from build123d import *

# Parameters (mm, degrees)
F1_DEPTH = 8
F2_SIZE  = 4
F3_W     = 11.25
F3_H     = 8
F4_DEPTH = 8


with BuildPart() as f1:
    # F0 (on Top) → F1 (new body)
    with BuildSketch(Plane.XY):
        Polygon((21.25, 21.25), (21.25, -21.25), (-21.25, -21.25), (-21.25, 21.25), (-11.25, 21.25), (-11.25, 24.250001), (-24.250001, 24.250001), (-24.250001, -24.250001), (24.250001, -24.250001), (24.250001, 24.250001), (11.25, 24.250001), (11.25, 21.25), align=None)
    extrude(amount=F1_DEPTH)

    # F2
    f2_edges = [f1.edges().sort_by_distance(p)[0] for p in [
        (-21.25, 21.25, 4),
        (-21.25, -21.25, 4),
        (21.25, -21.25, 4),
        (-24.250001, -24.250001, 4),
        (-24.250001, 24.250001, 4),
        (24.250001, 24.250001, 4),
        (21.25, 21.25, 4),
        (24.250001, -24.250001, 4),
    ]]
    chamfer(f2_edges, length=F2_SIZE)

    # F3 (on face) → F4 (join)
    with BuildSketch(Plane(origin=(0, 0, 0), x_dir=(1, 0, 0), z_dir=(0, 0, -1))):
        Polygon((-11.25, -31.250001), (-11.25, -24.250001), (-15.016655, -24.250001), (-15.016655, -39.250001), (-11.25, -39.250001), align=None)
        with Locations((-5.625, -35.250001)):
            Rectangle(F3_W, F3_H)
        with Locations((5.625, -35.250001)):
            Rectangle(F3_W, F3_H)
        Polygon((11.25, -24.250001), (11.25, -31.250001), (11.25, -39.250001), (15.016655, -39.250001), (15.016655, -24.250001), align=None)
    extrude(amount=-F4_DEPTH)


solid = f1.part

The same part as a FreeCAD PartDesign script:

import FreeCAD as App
import Part
import Sketcher

V = App.Vector
Q = App.Units.Quantity


def edges_at(feature, points):
    """Names of the edges that pass closest to the given points."""
    edges = feature.Shape.Edges
    near = lambda p: min(range(len(edges)), key=lambda i: edges[i].distToShape(Part.Vertex(*p))[0])
    return sorted({f"Edge{near(p) + 1}" for p in points})


def add_polygon(sketch, points):
    """Adds a closed chain of lines whose ends are joined by coincident constraints."""
    first, n = sketch.GeometryCount, len(points)
    for a, b in zip(points, points[1:] + points[:1]):
        sketch.addGeometry(Part.LineSegment(App.Vector(*a, 0), App.Vector(*b, 0)), False)
    for i in range(n):
        sketch.addConstraint(Sketcher.Constraint("Coincident", first + i, 2, first + (i + 1) % n, 1))

doc = App.newDocument("Part")
body = doc.addObject("PartDesign::Body", "Body")

sketch1 = doc.addObject("Sketcher::SketchObject", "Sketch")
body.addObject(sketch1)
sketch1.AttachmentSupport = (doc.XY_Plane, [""])
sketch1.MapMode = "FlatFace"
add_polygon(sketch1, [(21.2, 21.2), (21.2, -21.2), (-21.2, -21.2), (-21.2, 21.2), (-11.2, 21.2), (-11.2, 24.3), (-24.3, 24.3), (-24.3, -24.3), (24.3, -24.3), (24.3, 24.3), (11.2, 24.3), (11.2, 21.2)])
sketch1.addConstraint([
    Sketcher.Constraint("Vertical", 0),
    Sketcher.Constraint("Horizontal", 1),
    Sketcher.Constraint("Vertical", 2),
    Sketcher.Constraint("Horizontal", 3),
    Sketcher.Constraint("Vertical", 4),
    Sketcher.Constraint("Horizontal", 5),
    Sketcher.Constraint("Vertical", 6),
    Sketcher.Constraint("Horizontal", 7),
    Sketcher.Constraint("Vertical", 8),
    Sketcher.Constraint("Horizontal", 9),
    Sketcher.Constraint("Vertical", 10),
    Sketcher.Constraint("Horizontal", 11),
    Sketcher.Constraint("Symmetric", 0, 2, 2, 2, -1, 1),
    Sketcher.Constraint("Symmetric", 5, 2, 7, 2, -1, 1),
    Sketcher.Constraint("Symmetric", 4, 2, 9, 2, -2),
    Sketcher.Constraint("Horizontal", 3, 2, 10, 2),
    Sketcher.Constraint("Equal", 1, 0),
    Sketcher.Constraint("Equal", 7, 6),
    Sketcher.Constraint("DistanceX", 3, 1, 3, 2, Q("10 mm")),
    Sketcher.Constraint("DistanceX", 5, 2, 5, 1, Q("13.000001 mm")),
    Sketcher.Constraint("DistanceX", 1, 2, 1, 1, Q("42.5 mm")),
])
pad1 = doc.addObject("PartDesign::Pad", "Pad")
body.addObject(pad1)
pad1.Profile = sketch1
pad1.Length = 8
doc.recompute()

chamfer = doc.addObject("PartDesign::Chamfer", "Chamfer")
body.addObject(chamfer)
chamfer.Base = (pad1, edges_at(pad1, [
    (-21.25, 21.25, 4),
    (-21.25, -21.25, 4),
    (21.25, -21.25, 4),
    (-24.25, -24.25, 4),
    (-24.25, 24.25, 4),
    (24.25, 24.25, 4),
    (21.25, 21.25, 4),
    (24.25, -24.25, 4),
]))
chamfer.Size = 4

sketch2 = doc.addObject("Sketcher::SketchObject", "Sketch001")
body.addObject(sketch2)
sketch2.AttachmentSupport = (doc.XY_Plane, [""])
sketch2.MapMode = "FlatFace"
add_polygon(sketch2, [(-11.2, 24.3), (-15, 24.3), (-15, 39.3), (15, 39.3), (15, 24.3), (11.2, 24.3), (11.2, 31.3), (-11.2, 31.3)])
sketch2.addConstraint([
    Sketcher.Constraint("Horizontal", 0),
    Sketcher.Constraint("Vertical", 1),
    Sketcher.Constraint("Horizontal", 2),
    Sketcher.Constraint("Vertical", 3),
    Sketcher.Constraint("Horizontal", 4),
    Sketcher.Constraint("Vertical", 5),
    Sketcher.Constraint("Horizontal", 6),
    Sketcher.Constraint("Vertical", 7),
    Sketcher.Constraint("Symmetric", 0, 2, 3, 2, -2),
    Sketcher.Constraint("Equal", 0, 4),
    Sketcher.Constraint("DistanceY", 1, 1, 1, 2, Q("15 mm")),
    Sketcher.Constraint("DistanceY", 5, 1, 5, 2, Q("7 mm")),
    Sketcher.Constraint("DistanceX", 6, 2, 6, 1, Q("22.5 mm")),
    Sketcher.Constraint("DistanceY", -1, 1, 0, 2, Q("24.250001 mm")),
    Sketcher.Constraint("DistanceX", 2, 1, 2, 2, Q("30.03331 mm")),
])
pad2 = doc.addObject("PartDesign::Pad", "Pad001")
body.addObject(pad2)
pad2.Profile = sketch2
pad2.Length = 8

doc.recompute()
